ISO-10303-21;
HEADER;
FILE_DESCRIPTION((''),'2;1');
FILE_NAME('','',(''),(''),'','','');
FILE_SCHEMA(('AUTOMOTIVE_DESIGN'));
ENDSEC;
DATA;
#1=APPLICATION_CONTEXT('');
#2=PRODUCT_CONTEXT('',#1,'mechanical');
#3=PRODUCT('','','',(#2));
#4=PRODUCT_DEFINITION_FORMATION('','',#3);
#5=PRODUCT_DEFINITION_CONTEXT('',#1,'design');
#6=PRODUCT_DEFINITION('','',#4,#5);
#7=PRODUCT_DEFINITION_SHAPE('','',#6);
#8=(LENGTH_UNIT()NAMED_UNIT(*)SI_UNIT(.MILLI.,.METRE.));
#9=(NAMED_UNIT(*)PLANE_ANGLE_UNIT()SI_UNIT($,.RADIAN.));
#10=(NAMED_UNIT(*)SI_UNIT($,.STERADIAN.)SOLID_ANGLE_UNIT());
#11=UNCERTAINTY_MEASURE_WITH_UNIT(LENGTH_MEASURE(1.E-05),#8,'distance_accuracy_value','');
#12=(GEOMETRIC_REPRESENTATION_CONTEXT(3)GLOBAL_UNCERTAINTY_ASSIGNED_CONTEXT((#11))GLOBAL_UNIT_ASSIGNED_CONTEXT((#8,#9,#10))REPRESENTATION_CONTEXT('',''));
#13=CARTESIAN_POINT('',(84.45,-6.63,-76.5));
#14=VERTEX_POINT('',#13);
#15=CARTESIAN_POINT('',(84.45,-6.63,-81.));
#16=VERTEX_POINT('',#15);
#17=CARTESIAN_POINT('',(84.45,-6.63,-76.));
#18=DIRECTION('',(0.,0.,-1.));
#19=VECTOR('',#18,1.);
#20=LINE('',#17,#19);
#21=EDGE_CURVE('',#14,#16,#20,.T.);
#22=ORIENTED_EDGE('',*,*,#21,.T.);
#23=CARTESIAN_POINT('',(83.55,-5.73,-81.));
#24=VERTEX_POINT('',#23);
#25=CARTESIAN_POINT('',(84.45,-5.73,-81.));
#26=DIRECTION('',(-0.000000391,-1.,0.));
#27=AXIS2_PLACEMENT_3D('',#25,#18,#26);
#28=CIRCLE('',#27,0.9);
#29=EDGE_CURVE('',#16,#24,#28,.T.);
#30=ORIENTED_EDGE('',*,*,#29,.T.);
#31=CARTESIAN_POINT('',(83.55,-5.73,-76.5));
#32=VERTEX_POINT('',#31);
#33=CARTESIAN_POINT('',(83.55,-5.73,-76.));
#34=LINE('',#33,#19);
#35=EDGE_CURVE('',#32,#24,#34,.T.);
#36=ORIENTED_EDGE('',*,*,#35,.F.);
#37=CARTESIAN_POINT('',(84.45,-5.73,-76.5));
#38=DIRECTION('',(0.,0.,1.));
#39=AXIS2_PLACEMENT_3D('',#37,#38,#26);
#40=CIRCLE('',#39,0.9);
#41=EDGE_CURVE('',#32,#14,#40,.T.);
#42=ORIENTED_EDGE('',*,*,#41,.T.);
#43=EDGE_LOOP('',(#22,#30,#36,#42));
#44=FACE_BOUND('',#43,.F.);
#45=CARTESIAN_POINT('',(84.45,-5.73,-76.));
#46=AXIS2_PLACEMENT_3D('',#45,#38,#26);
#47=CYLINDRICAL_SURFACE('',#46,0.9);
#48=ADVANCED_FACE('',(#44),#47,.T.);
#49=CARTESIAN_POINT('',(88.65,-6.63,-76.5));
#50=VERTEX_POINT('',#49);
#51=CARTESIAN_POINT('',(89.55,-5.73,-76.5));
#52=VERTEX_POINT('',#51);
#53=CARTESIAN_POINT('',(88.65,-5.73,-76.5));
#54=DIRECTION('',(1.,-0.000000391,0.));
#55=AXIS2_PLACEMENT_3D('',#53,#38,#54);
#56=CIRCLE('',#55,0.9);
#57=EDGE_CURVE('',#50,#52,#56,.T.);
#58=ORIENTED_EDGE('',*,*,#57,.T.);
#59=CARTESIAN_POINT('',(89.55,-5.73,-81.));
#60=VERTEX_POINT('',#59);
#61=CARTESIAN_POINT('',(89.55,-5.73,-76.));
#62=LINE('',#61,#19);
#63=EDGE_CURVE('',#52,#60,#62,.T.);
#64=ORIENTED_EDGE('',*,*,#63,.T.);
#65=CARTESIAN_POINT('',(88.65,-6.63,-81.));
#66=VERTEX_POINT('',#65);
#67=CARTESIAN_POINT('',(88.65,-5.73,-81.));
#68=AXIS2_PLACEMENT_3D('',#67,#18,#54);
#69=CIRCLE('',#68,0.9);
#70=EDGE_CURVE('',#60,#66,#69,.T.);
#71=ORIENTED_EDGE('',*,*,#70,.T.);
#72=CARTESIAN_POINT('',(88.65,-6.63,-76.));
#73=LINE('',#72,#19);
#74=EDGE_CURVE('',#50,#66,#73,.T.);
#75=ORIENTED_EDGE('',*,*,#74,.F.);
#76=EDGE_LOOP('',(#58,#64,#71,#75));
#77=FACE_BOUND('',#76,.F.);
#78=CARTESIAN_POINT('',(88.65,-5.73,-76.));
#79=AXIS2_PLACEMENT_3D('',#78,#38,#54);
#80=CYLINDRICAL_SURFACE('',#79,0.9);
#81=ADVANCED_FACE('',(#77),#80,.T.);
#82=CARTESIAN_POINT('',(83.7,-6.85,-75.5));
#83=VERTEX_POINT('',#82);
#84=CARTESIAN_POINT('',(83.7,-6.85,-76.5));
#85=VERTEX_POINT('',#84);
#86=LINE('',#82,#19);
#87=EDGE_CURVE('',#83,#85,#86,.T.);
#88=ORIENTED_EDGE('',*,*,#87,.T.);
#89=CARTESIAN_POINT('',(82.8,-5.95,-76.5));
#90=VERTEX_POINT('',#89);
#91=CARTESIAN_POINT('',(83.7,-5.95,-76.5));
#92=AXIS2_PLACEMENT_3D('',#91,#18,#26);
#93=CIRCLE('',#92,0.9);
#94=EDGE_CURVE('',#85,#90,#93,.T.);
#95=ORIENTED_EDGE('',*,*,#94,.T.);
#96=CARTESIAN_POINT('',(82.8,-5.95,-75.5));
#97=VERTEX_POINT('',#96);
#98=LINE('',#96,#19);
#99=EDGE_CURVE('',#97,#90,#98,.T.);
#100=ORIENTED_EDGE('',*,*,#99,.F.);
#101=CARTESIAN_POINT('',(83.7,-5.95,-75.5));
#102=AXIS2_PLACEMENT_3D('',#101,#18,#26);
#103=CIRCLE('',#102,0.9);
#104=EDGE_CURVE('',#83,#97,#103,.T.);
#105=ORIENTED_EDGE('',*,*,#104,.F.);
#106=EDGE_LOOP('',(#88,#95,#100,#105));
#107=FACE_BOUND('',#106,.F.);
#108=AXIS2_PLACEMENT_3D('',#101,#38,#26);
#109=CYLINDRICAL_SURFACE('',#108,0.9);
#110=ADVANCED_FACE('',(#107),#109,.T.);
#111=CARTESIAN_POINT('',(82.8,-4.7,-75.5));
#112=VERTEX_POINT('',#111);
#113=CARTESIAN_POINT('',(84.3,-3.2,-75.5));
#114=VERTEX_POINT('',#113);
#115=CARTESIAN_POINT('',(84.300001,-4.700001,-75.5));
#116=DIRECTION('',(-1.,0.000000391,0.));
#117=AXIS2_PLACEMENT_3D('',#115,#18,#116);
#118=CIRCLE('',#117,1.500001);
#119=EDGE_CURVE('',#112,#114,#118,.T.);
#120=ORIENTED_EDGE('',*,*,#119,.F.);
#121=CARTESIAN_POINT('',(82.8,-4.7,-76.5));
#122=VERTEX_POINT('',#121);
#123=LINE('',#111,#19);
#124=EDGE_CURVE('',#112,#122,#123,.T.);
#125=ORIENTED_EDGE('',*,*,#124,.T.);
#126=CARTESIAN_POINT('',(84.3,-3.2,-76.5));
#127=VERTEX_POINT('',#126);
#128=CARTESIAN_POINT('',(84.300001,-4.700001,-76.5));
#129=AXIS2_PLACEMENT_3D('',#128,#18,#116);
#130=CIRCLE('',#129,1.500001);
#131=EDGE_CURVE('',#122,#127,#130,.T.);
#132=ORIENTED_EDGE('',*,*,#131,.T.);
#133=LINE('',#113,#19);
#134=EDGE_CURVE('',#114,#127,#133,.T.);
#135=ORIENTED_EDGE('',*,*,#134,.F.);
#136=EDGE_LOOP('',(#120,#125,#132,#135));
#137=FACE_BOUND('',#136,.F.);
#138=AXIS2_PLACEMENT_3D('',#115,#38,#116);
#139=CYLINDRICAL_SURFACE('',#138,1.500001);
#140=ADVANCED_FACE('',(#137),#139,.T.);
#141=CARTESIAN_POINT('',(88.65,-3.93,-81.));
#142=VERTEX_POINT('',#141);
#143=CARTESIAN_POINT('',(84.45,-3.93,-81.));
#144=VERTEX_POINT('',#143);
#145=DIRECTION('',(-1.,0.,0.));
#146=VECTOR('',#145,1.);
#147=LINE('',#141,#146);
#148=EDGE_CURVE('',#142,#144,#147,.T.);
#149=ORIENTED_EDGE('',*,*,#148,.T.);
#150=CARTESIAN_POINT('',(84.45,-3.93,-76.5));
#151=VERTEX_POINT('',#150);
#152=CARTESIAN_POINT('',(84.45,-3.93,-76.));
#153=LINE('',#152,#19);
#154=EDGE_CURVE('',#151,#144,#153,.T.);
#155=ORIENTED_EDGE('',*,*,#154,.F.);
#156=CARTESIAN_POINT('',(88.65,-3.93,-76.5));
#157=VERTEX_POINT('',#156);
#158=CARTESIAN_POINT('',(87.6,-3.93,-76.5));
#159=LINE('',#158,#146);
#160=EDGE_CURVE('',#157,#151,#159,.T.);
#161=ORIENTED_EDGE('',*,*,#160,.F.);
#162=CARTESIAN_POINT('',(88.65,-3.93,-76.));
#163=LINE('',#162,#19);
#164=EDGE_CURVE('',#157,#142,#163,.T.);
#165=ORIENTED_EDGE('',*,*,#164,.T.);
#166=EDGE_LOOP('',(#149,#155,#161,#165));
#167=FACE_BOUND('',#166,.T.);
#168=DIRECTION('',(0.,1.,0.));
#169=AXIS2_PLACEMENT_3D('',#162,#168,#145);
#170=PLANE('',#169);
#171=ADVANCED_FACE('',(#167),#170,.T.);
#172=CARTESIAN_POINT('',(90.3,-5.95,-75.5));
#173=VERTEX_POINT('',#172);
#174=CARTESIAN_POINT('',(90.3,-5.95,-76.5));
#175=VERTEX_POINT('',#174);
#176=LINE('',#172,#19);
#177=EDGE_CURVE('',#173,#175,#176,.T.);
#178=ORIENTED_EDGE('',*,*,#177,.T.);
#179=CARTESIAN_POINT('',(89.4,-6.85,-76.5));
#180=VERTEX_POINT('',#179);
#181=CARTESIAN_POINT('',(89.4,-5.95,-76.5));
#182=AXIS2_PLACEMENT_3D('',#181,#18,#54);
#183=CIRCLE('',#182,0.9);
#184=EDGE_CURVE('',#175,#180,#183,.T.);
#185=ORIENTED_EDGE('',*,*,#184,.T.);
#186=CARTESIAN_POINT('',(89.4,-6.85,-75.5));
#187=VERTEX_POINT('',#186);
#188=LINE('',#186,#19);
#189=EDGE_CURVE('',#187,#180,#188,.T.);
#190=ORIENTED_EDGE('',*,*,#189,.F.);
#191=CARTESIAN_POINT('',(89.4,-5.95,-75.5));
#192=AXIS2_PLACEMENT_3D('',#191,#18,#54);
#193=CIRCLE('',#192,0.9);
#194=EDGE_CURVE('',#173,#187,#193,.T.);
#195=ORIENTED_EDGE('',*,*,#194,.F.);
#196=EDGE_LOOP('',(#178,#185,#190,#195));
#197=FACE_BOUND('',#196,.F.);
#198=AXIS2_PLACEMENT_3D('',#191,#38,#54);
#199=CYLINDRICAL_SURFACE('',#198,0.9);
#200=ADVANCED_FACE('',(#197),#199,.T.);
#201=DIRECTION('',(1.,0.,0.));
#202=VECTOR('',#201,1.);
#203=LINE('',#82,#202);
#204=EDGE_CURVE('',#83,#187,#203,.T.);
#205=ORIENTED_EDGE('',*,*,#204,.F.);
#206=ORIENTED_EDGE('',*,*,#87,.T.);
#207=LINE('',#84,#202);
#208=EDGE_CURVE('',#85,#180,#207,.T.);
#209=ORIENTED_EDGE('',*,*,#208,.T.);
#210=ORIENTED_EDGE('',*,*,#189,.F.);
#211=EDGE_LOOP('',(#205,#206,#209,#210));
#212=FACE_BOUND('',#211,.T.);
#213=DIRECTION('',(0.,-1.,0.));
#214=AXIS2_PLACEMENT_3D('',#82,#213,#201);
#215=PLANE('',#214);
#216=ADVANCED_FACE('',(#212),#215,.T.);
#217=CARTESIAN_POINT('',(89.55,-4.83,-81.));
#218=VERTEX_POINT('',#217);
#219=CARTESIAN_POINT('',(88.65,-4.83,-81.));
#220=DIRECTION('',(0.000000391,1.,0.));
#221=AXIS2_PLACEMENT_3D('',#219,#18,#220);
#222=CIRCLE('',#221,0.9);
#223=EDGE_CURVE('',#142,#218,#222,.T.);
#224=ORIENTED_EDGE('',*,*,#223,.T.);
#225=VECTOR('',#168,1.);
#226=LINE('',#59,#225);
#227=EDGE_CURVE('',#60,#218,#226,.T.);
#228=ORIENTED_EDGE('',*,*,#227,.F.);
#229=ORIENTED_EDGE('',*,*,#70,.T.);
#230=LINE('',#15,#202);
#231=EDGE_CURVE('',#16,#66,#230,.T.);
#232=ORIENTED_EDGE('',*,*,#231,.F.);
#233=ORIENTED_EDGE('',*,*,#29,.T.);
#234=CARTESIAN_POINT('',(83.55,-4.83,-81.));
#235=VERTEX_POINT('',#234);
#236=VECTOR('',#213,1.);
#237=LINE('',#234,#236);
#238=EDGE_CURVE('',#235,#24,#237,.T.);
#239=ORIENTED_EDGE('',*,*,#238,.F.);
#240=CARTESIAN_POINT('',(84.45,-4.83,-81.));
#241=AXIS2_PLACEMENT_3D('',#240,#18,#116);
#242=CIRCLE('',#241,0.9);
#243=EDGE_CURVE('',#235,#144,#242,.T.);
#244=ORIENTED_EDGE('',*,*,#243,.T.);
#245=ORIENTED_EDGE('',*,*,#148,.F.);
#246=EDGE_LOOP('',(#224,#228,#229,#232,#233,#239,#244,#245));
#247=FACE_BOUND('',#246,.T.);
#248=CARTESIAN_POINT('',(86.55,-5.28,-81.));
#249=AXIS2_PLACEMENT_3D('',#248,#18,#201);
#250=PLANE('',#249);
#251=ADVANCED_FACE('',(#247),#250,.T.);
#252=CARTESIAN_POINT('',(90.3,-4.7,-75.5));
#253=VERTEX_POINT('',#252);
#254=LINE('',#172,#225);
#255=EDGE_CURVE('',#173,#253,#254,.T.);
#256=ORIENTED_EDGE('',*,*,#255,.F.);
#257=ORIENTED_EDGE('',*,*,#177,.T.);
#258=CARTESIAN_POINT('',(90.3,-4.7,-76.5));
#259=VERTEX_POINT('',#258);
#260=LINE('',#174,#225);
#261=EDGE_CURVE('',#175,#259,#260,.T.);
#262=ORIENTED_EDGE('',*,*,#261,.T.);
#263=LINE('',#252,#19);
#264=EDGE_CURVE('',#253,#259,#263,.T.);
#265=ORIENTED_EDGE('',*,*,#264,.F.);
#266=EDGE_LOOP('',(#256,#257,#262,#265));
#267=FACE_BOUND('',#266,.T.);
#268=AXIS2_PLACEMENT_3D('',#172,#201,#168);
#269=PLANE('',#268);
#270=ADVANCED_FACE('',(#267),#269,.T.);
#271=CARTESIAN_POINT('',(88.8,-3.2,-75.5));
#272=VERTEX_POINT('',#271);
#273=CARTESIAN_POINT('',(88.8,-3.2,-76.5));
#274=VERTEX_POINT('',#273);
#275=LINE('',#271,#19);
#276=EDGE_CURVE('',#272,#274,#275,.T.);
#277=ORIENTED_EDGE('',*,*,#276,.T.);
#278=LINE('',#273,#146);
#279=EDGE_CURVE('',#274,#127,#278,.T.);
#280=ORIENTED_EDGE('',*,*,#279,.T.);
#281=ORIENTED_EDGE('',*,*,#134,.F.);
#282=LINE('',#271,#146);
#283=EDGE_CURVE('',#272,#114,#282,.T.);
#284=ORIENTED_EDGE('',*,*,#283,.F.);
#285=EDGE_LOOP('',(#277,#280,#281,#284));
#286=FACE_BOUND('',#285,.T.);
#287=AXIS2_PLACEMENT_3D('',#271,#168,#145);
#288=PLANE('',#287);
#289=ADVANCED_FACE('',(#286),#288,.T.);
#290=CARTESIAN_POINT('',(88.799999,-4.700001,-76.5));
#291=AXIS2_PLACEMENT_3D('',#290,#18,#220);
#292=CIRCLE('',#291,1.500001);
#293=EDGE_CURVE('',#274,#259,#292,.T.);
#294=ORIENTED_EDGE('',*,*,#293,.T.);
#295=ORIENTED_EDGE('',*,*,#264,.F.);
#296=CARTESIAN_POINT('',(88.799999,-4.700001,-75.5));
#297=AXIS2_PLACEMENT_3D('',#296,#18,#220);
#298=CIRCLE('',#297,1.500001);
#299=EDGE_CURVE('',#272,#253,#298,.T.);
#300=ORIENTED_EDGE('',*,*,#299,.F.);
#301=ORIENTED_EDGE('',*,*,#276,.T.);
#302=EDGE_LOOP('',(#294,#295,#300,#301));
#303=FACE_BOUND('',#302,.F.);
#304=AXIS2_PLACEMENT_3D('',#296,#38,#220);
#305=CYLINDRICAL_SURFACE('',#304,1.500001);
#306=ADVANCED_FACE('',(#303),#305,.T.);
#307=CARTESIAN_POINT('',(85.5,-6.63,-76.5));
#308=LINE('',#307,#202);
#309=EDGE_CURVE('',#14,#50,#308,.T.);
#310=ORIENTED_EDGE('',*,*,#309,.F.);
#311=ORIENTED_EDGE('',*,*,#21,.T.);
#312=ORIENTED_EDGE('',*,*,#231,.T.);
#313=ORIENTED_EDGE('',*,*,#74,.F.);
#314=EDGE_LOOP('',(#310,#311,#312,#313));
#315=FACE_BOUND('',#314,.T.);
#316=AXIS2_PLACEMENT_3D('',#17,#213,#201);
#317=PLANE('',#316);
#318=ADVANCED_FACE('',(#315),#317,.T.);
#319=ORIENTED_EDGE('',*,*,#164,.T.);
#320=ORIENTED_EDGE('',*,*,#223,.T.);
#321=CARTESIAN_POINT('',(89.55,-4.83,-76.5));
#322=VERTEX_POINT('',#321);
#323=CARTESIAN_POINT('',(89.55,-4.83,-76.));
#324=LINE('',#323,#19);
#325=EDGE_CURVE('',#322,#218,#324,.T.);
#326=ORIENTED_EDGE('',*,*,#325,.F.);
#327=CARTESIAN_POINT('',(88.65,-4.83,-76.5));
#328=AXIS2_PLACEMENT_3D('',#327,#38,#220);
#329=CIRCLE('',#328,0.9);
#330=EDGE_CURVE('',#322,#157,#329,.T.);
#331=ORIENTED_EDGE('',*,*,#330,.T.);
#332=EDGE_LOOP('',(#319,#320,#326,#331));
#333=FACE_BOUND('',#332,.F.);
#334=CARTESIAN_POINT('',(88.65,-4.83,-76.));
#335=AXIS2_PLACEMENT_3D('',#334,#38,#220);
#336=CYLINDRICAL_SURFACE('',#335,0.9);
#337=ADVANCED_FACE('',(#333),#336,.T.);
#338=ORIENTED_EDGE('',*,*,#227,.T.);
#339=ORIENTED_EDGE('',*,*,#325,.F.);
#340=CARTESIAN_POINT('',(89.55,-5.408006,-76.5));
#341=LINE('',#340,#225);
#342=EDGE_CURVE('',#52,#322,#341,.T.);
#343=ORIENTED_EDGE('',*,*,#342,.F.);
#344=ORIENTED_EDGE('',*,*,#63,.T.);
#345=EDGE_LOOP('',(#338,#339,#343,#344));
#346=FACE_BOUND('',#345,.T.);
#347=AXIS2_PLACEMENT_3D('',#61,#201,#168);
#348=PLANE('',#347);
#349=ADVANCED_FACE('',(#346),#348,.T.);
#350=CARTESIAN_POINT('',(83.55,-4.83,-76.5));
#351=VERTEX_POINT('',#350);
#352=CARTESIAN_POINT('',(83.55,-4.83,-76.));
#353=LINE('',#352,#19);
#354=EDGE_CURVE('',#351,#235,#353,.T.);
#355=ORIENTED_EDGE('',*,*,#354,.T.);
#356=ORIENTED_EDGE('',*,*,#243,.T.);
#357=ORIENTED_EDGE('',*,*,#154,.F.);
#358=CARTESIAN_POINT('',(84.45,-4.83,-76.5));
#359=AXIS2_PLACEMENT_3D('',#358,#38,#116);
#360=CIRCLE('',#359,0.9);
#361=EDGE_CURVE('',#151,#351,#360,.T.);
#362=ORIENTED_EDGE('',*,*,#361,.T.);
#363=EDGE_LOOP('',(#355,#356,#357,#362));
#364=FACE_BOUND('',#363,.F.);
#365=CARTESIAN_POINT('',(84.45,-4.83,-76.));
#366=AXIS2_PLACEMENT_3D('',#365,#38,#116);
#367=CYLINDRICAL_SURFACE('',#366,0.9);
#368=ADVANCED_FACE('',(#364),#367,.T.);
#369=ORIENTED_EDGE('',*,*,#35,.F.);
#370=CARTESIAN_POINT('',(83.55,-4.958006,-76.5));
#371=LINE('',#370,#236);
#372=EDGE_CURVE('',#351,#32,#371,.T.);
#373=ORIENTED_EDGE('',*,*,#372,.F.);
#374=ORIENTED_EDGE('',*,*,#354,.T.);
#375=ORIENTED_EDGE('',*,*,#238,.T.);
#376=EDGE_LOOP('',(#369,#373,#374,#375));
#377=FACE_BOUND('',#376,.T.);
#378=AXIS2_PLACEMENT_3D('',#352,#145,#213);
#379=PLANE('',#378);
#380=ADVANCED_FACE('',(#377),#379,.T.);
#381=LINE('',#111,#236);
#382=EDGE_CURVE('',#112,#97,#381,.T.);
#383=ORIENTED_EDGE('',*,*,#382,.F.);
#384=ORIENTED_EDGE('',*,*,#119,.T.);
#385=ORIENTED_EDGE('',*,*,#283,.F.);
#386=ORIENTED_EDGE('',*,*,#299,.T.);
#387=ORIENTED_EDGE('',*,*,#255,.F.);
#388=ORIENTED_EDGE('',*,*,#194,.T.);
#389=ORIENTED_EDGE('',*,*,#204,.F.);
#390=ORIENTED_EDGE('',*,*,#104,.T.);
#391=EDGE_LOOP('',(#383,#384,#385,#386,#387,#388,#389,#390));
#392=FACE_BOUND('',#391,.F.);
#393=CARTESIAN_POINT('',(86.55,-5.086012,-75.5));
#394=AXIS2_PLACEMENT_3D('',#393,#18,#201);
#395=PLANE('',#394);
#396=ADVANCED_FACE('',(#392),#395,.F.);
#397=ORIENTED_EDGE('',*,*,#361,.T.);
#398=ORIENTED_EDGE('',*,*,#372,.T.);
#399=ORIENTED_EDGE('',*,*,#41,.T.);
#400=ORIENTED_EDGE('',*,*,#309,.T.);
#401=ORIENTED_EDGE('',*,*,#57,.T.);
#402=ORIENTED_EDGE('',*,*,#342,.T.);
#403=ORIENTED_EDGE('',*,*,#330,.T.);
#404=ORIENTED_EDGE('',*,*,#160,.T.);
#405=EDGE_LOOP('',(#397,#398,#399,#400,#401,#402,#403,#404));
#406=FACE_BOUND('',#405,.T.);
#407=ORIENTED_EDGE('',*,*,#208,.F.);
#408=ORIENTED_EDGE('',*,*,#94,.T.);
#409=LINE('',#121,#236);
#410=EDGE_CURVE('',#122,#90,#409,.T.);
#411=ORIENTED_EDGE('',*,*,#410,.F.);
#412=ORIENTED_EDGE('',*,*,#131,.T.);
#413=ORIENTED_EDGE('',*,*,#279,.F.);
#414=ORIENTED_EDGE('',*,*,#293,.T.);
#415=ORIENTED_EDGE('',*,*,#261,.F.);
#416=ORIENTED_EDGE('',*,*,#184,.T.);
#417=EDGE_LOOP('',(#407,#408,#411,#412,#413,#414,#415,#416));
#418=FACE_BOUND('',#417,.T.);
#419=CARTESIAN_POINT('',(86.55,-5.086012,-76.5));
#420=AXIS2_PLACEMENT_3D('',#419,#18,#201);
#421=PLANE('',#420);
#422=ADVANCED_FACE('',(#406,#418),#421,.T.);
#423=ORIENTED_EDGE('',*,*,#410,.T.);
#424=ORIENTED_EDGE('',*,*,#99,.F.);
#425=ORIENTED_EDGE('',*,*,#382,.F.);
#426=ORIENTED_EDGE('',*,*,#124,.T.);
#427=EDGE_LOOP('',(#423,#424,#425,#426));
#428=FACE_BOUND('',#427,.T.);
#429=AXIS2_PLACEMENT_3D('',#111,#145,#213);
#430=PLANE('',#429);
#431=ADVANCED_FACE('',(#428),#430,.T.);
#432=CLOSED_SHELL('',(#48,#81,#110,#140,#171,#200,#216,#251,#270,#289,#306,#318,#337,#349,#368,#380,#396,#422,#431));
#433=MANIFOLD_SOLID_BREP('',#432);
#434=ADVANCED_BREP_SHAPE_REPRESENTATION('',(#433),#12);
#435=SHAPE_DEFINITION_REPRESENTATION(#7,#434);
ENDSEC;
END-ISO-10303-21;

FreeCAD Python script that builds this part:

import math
import FreeCAD as App
import Part
import Sketcher

V = App.Vector
Q = App.Units.Quantity

doc = App.newDocument("Part")
body = doc.addObject("PartDesign::Body", "Body")

sketch1 = body.newObject("Sketcher::SketchObject", "Sketch")
sketch1.AttachmentSupport = (doc.getObject("XZ_Plane"), [""])
sketch1.MapMode = "FlatFace"
sketch1.addGeometry(Part.ArcOfCircle(Part.Circle(V(11.7, 15.4, 0), V(0, 0, 1), 0.9), math.radians(90), math.radians(180)), False)
sketch1.addGeometry(Part.LineSegment(V(10.8, 15.4, 0), V(10.8, 14.2, 0)), False)
sketch1.addGeometry(Part.ArcOfCircle(Part.Circle(V(12.3, 14.2, 0), V(0, 0, 1), 1.5), math.radians(-180), math.radians(-90)), False)
sketch1.addGeometry(Part.LineSegment(V(12.3, 12.7, 0), V(16.8, 12.7, 0)), False)
sketch1.addGeometry(Part.ArcOfCircle(Part.Circle(V(16.8, 14.2, 0), V(0, 0, 1), 1.5), math.radians(-90), math.radians(0)), False)
sketch1.addGeometry(Part.LineSegment(V(18.3, 14.2, 0), V(18.3, 15.4, 0)), False)
sketch1.addGeometry(Part.ArcOfCircle(Part.Circle(V(17.4, 15.4, 0), V(0, 0, 1), 0.9), math.radians(0), math.radians(90)), False)
sketch1.addGeometry(Part.LineSegment(V(17.4, 16.4, 0), V(11.7, 16.4, 0)), False)
sketch1.addConstraint(Sketcher.Constraint("Tangent", 0, 2, 1, 1))
sketch1.addConstraint(Sketcher.Constraint("Tangent", 1, 2, 2, 1))
sketch1.addConstraint(Sketcher.Constraint("Tangent", 2, 2, 3, 1))
sketch1.addConstraint(Sketcher.Constraint("Tangent", 3, 2, 4, 1))
sketch1.addConstraint(Sketcher.Constraint("Tangent", 4, 2, 5, 1))
sketch1.addConstraint(Sketcher.Constraint("Tangent", 5, 2, 6, 1))
sketch1.addConstraint(Sketcher.Constraint("Tangent", 6, 2, 7, 1))
sketch1.addConstraint(Sketcher.Constraint("Tangent", 7, 2, 0, 1))
sketch1.addConstraint(Sketcher.Constraint("Vertical", 1))
sketch1.addConstraint(Sketcher.Constraint("Horizontal", 3))
sketch1.addConstraint(Sketcher.Constraint("Vertical", 5))
sketch1.addConstraint(Sketcher.Constraint("Horizontal", 7))
sketch1.addConstraint(Sketcher.Constraint("Equal", 2, 4))
sketch1.addConstraint(Sketcher.Constraint("Equal", 0, 6))
sketch1.addConstraint(Sketcher.Constraint("Radius", 0, Q("0.9 mm")))
sketch1.addConstraint(Sketcher.Constraint("Radius", 2, Q("1.500001 mm")))
sketch1.addConstraint(Sketcher.Constraint("DistanceX", 3, 1, 3, 2, Q("4.5 mm")))
sketch1.addConstraint(Sketcher.Constraint("DistanceY", 1, 2, 1, 1, Q("1.25 mm")))
sketch1.addConstraint(Sketcher.Constraint("DistanceX", -1, 1, 0, 3, Q("11.7 mm")))
sketch1.addConstraint(Sketcher.Constraint("DistanceY", -1, 1, 2, 3, Q("14.200001 mm")))
pad1 = body.newObject("PartDesign::Pad", "Pad")
pad1.Profile = sketch1
pad1.Length = 1
body2 = doc.addObject("PartDesign::Body", "Body001")
doc.recompute()

body.Placement = App.Placement(V(0, 2.5, 0), App.Rotation(V(0, 0, 1), 0))
boolean = body2.newObject("PartDesign::Boolean", "Boolean")
boolean.Type = "Fuse"
boolean.addObjects([body])
body3 = doc.addObject("PartDesign::Body", "Body002")

sketch2 = body3.newObject("Sketcher::SketchObject", "Sketch001")
sketch2.AttachmentSupport = (doc.getObject("XZ_Plane002"), [""])
sketch2.MapMode = "FlatFace"
sketch2.addGeometry(Part.ArcOfCircle(Part.Circle(V(12.8, 15.3, 0), V(0, 0, 1), 0.9), math.radians(90), math.radians(180)), False)
sketch2.addGeometry(Part.LineSegment(V(11.8, 15.3, 0), V(11.8, 14.4, 0)), False)
sketch2.addGeometry(Part.ArcOfCircle(Part.Circle(V(12.8, 14.4, 0), V(0, 0, 1), 0.9), math.radians(-180), math.radians(-90)), False)
sketch2.addGeometry(Part.LineSegment(V(12.8, 13.5, 0), V(16.9, 13.5, 0)), False)
sketch2.addGeometry(Part.ArcOfCircle(Part.Circle(V(16.9, 14.4, 0), V(0, 0, 1), 0.9), math.radians(-90), math.radians(0)), False)
sketch2.addGeometry(Part.LineSegment(V(17.9, 14.4, 0), V(17.9, 15.3, 0)), False)
sketch2.addGeometry(Part.ArcOfCircle(Part.Circle(V(16.9, 15.3, 0), V(0, 0, 1), 0.9), math.radians(0), math.radians(90)), False)
sketch2.addGeometry(Part.LineSegment(V(16.9, 16.2, 0), V(12.8, 16.2, 0)), False)
sketch2.addConstraint(Sketcher.Constraint("Tangent", 0, 2, 1, 1))
sketch2.addConstraint(Sketcher.Constraint("Tangent", 1, 2, 2, 1))
sketch2.addConstraint(Sketcher.Constraint("Tangent", 2, 2, 3, 1))
sketch2.addConstraint(Sketcher.Constraint("Tangent", 3, 2, 4, 1))
sketch2.addConstraint(Sketcher.Constraint("Tangent", 4, 2, 5, 1))
sketch2.addConstraint(Sketcher.Constraint("Tangent", 5, 2, 6, 1))
sketch2.addConstraint(Sketcher.Constraint("Tangent", 6, 2, 7, 1))
sketch2.addConstraint(Sketcher.Constraint("Tangent", 7, 2, 0, 1))
sketch2.addConstraint(Sketcher.Constraint("Vertical", 1))
sketch2.addConstraint(Sketcher.Constraint("Horizontal", 3))
sketch2.addConstraint(Sketcher.Constraint("Vertical", 5))
sketch2.addConstraint(Sketcher.Constraint("Horizontal", 7))
sketch2.addConstraint(Sketcher.Constraint("Equal", 0, 2))
sketch2.addConstraint(Sketcher.Constraint("Equal", 2, 4))
sketch2.addConstraint(Sketcher.Constraint("Equal", 4, 6))
sketch2.addConstraint(Sketcher.Constraint("Radius", 0, Q("0.9 mm")))
sketch2.addConstraint(Sketcher.Constraint("DistanceX", 3, 1, 3, 2, Q("4.2 mm")))
sketch2.addConstraint(Sketcher.Constraint("DistanceY", 1, 2, 1, 1, Q("0.9 mm")))
sketch2.addConstraint(Sketcher.Constraint("DistanceX", -1, 1, 0, 3, Q("12.75 mm")))
sketch2.addConstraint(Sketcher.Constraint("DistanceY", -1, 1, 0, 3, Q("15.33 mm")))
pad2 = body3.newObject("PartDesign::Pad", "Pad001")
pad2.Profile = sketch2
pad2.Length = 5
body4 = doc.addObject("PartDesign::Body", "Body003")
doc.recompute()

body3.Placement = App.Placement(V(-0.3, 2, -0.1), App.Rotation(V(0, 0, 1), 0))
boolean2 = body4.newObject("PartDesign::Boolean", "Boolean001")
boolean2.Type = "Fuse"
boolean2.addObjects([body3])
doc.recompute()

boolean3 = body4.newObject("PartDesign::Boolean", "Boolean002")
boolean3.Type = "Fuse"
boolean3.addObjects([body2])
body5 = doc.addObject("PartDesign::Body", "Body004")
doc.recompute()

body4.Placement = App.Placement(V(72, 9.5, -78), App.Rotation(V(1, 0, 0), 90))
boolean4 = body5.newObject("PartDesign::Boolean", "Boolean003")
boolean4.Type = "Fuse"
boolean4.addObjects([body4])

doc.recompute()
